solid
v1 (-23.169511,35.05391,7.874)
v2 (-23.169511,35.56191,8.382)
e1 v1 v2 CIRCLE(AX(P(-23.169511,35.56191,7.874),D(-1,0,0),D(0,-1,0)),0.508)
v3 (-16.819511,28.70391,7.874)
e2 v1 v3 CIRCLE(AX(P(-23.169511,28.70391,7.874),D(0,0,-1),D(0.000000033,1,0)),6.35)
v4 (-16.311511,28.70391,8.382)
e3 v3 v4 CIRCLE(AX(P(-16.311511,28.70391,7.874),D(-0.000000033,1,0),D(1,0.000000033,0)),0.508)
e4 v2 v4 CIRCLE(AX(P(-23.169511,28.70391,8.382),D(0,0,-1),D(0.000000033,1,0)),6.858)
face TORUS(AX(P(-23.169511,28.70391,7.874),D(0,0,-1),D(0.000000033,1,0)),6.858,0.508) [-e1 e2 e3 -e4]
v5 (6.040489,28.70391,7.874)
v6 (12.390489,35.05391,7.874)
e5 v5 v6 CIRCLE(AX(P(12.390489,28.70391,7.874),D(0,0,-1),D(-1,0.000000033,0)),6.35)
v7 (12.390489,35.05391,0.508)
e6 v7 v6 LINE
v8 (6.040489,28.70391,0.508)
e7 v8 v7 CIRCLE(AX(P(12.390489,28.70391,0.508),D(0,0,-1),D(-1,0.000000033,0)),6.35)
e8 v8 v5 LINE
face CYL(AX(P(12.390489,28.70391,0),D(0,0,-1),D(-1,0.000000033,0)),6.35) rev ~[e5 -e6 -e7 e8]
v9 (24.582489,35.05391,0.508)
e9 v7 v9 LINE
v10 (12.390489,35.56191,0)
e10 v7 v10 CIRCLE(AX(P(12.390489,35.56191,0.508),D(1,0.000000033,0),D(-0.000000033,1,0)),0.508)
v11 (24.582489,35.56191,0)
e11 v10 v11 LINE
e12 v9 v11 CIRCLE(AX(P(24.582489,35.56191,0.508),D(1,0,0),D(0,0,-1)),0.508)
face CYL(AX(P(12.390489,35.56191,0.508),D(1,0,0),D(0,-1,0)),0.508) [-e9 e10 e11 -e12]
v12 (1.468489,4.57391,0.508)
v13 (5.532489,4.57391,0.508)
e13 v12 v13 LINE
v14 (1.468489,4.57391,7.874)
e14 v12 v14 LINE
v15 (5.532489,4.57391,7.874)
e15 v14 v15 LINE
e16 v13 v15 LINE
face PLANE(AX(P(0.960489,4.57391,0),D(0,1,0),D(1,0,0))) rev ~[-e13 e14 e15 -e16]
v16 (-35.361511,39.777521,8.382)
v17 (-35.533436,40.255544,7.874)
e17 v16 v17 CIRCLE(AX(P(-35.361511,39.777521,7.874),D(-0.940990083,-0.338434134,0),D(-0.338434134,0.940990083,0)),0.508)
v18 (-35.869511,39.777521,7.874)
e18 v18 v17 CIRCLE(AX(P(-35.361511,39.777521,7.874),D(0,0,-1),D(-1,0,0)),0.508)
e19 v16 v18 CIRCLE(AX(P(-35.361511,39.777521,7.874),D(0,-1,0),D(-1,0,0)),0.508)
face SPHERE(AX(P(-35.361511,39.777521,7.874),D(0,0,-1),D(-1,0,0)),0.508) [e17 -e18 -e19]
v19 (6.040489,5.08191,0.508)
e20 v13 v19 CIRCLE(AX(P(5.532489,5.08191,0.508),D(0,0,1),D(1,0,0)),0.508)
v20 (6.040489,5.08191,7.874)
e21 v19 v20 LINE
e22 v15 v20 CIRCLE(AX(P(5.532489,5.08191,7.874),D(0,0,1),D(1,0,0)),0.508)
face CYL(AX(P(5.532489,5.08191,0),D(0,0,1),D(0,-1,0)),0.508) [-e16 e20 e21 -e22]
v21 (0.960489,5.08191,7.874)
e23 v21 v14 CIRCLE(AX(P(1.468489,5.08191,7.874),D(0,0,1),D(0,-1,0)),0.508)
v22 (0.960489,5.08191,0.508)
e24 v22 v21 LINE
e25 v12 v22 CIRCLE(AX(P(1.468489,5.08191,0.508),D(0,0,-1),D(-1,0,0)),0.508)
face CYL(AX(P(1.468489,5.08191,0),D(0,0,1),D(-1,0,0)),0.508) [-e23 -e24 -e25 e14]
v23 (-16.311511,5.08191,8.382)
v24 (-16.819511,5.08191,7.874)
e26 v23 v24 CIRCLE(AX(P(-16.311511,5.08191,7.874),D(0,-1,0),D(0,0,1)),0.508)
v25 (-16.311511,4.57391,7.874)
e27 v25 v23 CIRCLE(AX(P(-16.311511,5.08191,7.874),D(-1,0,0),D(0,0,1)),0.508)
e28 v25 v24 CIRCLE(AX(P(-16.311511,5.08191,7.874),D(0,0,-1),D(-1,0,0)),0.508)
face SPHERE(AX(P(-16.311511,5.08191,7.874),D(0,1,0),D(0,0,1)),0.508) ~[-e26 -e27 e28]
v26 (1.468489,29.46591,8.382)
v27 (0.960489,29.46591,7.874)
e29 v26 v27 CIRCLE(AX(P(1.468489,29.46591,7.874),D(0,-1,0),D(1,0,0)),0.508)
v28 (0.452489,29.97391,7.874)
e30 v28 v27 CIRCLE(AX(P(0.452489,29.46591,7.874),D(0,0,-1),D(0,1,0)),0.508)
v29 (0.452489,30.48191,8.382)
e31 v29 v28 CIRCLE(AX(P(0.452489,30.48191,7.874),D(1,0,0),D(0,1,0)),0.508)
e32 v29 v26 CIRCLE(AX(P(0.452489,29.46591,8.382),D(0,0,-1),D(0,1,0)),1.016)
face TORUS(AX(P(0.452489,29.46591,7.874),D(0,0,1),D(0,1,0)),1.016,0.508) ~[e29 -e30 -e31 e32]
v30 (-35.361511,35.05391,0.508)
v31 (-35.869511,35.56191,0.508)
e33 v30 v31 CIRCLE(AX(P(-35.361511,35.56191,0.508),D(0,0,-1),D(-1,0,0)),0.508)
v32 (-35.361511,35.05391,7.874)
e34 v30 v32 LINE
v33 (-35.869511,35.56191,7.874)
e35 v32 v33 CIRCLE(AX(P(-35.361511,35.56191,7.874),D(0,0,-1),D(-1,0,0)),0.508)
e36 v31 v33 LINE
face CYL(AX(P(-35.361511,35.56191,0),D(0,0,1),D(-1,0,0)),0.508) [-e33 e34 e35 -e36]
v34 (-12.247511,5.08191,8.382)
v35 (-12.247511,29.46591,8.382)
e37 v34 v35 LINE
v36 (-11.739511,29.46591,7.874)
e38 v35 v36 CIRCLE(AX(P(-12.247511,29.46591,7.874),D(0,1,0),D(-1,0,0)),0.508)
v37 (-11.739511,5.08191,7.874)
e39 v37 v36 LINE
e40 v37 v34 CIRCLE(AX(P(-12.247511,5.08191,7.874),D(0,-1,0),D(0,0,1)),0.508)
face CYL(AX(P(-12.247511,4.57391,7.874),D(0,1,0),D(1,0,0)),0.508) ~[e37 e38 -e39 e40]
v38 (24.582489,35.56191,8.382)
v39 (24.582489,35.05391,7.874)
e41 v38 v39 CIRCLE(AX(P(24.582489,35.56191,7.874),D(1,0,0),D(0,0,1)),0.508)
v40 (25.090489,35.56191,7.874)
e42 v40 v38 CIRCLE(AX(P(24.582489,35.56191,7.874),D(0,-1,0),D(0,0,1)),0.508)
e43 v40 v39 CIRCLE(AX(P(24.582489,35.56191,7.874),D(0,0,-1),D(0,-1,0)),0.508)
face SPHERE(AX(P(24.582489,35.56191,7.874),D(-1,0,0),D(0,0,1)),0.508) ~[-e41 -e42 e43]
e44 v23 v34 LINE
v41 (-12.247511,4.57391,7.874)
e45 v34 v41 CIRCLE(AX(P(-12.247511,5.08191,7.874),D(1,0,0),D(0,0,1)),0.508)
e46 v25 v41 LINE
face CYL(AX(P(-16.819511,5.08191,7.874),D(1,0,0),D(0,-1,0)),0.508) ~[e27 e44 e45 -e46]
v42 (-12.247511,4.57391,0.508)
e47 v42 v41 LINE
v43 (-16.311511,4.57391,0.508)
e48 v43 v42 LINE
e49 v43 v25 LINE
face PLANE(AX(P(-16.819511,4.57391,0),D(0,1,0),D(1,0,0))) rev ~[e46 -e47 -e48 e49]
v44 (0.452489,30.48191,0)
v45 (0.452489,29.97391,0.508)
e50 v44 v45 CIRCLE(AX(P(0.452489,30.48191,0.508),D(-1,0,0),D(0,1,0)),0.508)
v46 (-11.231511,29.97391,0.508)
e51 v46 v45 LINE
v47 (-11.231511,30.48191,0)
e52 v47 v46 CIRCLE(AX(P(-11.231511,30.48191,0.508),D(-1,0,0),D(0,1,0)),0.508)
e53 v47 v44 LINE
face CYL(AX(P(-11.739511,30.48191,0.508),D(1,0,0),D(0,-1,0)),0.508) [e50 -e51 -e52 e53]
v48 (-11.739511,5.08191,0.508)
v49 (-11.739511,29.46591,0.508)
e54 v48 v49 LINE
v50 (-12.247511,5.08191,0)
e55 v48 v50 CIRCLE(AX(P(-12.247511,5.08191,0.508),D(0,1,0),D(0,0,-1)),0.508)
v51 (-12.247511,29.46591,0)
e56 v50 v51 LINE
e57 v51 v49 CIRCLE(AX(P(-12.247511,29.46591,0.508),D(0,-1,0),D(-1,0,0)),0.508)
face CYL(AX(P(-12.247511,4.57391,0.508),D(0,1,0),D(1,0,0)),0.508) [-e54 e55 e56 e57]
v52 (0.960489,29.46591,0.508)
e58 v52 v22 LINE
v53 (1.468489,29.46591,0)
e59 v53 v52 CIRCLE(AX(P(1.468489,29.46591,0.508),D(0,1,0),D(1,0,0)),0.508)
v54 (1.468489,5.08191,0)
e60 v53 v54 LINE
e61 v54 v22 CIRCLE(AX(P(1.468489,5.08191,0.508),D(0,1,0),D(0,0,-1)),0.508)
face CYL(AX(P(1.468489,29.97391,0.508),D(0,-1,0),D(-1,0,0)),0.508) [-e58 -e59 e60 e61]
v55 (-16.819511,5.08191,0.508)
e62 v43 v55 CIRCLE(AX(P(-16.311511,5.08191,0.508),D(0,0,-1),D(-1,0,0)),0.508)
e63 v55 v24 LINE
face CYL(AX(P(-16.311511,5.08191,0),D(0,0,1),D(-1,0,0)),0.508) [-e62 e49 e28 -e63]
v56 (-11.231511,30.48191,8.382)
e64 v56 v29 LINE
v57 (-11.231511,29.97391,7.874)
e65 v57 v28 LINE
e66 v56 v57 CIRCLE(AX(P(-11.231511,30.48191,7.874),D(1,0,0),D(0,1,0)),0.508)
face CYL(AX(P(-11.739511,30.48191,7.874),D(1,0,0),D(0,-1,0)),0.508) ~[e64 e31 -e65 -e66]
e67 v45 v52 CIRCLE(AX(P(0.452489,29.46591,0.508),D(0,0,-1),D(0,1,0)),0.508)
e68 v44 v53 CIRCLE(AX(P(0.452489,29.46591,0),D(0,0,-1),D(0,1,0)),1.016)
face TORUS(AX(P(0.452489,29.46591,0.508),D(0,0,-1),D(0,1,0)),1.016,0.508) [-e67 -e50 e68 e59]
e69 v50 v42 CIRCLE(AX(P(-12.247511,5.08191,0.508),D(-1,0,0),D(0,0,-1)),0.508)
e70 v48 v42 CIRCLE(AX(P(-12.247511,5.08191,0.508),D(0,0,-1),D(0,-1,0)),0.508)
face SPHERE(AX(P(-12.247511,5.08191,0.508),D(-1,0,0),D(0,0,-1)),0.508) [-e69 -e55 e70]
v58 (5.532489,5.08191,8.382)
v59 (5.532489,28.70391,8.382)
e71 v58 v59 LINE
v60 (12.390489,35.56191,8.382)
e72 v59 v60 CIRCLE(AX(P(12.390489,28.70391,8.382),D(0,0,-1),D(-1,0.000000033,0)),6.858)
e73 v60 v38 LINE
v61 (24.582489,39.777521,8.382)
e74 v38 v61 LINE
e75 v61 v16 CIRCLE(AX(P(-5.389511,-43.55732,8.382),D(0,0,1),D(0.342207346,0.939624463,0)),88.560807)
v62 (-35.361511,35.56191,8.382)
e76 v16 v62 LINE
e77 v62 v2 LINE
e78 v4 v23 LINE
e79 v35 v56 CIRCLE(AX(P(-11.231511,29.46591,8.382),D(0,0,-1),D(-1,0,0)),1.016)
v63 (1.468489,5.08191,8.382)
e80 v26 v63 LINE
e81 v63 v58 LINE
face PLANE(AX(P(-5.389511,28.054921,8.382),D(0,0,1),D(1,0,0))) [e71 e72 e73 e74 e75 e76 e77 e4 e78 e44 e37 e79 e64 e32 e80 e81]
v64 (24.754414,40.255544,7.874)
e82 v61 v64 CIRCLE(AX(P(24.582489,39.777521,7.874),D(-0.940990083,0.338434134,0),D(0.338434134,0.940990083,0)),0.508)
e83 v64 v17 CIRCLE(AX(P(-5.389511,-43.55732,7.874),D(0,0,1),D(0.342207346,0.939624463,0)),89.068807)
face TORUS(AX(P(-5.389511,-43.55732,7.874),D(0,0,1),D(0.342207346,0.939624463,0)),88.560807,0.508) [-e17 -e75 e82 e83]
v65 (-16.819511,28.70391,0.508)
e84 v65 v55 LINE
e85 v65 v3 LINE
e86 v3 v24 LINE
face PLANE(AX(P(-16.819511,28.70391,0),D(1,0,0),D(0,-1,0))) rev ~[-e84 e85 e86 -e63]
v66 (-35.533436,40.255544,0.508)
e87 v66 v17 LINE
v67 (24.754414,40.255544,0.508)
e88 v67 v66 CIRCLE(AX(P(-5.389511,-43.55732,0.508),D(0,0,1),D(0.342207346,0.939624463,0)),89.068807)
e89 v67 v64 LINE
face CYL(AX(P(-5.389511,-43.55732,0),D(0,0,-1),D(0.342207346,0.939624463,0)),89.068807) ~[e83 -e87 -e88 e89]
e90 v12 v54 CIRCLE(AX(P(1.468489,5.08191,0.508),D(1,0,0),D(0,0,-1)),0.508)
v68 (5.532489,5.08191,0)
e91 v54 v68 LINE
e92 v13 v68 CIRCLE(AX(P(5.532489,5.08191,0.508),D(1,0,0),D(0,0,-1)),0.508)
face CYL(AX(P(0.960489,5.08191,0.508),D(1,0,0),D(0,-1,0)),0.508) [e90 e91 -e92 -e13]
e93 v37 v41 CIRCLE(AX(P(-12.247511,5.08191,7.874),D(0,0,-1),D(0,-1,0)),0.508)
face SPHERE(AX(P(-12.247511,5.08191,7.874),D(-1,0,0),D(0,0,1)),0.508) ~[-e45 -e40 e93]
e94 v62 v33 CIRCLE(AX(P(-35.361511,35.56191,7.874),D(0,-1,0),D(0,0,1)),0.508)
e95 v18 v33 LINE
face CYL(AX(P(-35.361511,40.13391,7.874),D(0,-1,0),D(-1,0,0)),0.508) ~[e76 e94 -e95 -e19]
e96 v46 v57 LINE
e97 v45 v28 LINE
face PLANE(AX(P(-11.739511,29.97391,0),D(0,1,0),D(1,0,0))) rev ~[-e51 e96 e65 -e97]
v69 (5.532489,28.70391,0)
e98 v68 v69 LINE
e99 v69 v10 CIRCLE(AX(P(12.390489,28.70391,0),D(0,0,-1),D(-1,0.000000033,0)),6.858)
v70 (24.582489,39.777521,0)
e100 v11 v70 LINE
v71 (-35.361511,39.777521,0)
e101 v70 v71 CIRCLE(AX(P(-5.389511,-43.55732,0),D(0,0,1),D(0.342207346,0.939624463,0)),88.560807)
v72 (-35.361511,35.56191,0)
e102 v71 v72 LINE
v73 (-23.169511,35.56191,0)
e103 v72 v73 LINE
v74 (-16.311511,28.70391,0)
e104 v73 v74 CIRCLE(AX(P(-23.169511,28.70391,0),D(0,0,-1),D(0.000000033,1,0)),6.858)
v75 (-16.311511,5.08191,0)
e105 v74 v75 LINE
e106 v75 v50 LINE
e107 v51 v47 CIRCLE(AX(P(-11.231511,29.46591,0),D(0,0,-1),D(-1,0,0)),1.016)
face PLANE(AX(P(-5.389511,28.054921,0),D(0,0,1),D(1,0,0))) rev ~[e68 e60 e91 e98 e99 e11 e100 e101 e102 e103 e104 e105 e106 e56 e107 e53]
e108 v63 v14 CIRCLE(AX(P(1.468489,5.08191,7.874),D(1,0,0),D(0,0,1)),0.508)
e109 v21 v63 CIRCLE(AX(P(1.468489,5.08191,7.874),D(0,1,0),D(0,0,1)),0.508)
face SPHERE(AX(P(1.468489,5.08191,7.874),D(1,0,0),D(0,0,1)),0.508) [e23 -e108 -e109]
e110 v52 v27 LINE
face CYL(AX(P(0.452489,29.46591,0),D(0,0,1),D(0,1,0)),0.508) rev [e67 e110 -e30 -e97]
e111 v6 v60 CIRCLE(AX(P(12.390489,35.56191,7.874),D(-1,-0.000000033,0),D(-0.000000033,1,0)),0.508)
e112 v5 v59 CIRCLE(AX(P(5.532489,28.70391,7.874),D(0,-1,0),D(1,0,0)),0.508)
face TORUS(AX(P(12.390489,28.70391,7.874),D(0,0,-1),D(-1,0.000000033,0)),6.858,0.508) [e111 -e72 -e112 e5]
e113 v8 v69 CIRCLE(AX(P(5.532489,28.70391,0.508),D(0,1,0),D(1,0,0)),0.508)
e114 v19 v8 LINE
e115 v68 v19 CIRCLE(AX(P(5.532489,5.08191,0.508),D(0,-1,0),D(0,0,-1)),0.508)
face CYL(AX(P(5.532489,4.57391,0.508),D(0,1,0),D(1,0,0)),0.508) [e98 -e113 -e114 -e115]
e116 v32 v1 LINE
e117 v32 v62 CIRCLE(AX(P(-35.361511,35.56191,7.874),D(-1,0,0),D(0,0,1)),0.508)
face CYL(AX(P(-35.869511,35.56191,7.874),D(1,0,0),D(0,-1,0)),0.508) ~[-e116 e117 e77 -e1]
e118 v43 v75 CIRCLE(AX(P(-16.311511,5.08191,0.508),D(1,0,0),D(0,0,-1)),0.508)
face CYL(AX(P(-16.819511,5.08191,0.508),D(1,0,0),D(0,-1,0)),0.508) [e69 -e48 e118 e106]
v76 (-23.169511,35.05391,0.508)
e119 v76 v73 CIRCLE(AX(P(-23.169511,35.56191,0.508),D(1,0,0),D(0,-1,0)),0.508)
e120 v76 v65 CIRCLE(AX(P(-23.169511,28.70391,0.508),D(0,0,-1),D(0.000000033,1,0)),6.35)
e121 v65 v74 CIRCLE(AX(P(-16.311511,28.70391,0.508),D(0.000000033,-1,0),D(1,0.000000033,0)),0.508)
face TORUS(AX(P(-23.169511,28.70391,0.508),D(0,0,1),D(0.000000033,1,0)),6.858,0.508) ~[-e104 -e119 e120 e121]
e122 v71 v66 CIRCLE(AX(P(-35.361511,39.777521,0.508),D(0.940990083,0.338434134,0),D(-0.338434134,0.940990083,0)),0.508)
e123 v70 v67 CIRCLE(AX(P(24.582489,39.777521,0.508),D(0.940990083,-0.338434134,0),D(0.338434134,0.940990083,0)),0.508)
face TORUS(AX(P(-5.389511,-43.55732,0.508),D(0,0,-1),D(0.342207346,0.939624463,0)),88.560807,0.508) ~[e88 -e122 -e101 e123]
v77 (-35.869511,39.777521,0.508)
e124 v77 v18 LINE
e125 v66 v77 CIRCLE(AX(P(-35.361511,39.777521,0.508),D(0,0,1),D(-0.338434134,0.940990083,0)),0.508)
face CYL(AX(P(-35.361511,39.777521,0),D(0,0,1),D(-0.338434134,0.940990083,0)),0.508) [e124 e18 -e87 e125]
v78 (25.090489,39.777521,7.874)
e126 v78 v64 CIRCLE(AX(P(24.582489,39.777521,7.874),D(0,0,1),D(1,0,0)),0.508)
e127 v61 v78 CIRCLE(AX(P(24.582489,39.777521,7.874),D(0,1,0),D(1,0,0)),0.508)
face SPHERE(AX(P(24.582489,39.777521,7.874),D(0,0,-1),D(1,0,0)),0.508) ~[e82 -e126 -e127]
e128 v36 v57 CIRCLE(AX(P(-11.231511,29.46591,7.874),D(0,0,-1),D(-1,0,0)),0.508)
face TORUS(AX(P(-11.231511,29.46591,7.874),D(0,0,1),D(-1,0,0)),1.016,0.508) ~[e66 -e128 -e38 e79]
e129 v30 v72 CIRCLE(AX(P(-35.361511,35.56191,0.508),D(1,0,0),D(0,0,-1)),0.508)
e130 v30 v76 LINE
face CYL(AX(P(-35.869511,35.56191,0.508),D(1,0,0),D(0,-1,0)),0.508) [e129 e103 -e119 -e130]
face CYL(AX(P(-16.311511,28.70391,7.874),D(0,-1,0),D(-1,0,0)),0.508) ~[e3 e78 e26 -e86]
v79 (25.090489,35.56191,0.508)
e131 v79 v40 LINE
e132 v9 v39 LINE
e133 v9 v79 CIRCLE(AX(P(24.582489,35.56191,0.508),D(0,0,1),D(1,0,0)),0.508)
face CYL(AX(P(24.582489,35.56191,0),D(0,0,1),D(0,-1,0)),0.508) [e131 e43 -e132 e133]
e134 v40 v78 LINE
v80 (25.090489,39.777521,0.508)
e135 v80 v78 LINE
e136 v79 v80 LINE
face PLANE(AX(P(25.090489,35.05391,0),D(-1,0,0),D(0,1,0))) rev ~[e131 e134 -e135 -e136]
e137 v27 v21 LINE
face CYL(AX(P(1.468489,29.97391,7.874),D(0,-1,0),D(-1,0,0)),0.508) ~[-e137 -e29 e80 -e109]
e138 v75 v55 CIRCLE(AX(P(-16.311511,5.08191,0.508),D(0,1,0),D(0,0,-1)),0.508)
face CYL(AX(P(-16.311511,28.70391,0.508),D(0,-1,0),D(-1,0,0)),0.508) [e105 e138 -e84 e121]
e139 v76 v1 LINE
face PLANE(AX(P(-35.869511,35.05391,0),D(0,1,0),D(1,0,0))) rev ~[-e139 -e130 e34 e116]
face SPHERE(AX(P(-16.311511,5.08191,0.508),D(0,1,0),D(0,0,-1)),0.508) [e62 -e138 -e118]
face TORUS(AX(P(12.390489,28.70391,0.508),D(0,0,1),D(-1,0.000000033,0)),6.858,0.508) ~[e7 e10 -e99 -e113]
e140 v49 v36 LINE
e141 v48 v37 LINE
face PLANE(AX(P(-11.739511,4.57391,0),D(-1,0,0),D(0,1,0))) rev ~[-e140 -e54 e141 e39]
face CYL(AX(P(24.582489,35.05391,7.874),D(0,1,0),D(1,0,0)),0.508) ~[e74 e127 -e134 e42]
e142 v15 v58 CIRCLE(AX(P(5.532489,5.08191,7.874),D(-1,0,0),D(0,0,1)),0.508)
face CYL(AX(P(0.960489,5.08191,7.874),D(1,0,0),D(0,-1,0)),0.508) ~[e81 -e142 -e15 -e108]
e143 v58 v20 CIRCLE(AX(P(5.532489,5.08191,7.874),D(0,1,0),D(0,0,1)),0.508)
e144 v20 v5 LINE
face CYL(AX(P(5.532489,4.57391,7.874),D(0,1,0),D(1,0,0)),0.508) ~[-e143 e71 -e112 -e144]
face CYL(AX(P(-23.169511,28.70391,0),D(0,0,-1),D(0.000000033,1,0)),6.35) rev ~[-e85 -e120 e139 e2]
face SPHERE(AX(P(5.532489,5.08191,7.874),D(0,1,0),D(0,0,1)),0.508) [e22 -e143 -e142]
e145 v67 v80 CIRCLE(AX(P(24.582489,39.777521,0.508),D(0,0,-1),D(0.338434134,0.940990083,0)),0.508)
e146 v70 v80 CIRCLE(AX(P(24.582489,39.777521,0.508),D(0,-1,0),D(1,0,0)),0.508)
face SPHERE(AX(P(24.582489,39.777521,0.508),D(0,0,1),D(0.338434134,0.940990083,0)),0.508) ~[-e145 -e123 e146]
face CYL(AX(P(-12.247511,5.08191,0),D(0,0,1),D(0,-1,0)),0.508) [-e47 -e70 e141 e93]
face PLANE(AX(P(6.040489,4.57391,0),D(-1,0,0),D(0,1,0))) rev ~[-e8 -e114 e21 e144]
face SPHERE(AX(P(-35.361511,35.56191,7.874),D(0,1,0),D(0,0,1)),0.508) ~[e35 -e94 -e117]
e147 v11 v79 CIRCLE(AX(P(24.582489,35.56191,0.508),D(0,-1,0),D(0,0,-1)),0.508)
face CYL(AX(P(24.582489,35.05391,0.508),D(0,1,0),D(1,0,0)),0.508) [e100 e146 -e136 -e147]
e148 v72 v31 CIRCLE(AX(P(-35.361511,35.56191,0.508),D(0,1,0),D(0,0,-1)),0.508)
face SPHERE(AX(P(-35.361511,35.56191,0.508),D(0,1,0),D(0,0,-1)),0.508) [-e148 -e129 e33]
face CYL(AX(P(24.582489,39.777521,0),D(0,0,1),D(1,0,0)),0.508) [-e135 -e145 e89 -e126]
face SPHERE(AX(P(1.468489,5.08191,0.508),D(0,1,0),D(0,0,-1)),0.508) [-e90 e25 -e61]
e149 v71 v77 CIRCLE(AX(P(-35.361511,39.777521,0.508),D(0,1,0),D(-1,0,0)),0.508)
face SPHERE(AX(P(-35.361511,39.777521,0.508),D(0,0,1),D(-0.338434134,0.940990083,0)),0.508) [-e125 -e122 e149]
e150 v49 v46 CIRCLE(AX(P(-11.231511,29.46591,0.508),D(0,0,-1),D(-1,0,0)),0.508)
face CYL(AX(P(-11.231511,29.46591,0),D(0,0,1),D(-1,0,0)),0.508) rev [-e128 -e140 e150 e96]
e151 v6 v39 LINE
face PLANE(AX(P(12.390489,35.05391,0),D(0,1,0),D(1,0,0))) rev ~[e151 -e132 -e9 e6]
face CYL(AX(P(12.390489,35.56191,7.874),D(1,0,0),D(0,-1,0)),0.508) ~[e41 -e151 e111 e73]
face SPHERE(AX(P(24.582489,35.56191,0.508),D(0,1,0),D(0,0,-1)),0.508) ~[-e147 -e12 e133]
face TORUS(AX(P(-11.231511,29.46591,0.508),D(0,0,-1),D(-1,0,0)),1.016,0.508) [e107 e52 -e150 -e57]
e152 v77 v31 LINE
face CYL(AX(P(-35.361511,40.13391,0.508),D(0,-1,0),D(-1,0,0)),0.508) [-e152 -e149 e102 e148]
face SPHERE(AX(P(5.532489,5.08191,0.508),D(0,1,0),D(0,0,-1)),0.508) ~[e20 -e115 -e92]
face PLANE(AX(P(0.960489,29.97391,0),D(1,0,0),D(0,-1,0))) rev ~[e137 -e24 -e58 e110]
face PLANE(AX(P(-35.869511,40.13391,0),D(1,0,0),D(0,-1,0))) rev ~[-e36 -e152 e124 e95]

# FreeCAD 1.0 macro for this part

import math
import FreeCAD as App
import Part
import Sketcher

V = App.Vector
Q = App.Units.Quantity

doc = App.newDocument("Part")
params = doc.addObject("Spreadsheet::Sheet", "Params")
for row, (alias, value) in enumerate([
    ("sketch1_height", "1 in"),
    ("sketch1_radius", "0.25 in"),
    ("sketch1_width", "0.2 in"),
    ("sketch1_width2", "0.5 in"),
    ("sketch1_height2", "0.95 in"),
    ("pad1_length", "0.33 in"),
    ("fillet_radius", "0.02 in"),
], start=1):
    params.set(f"A{row}", alias)
    params.set(f"B{row}", "=" + value)
    params.setAlias(f"B{row}", alias)

body = doc.addObject("PartDesign::Body", "Body")

# Sketch on XY plane
sketch1 = body.newObject("Sketcher::SketchObject", "Sketch")
sketch1.AttachmentSupport = (doc.getObject("XY_Plane"), [""])
sketch1.MapMode = "FlatFace"
sketch1.addGeometry([
    Part.LineSegment(V(-17, 29, 0), V(-17, 5, 0)),  # 0
    Part.LineSegment(V(-17, 5, 0), V(-12, 5, 0)),  # 1
    Part.LineSegment(V(-12, 5, 0), V(-12, 30, 0)),  # 2
    Part.LineSegment(V(-12, 30, 0), V(1, 30, 0)),  # 3
    Part.LineSegment(V(1, 30, 0), V(1, 5, 0)),  # 4
    Part.LineSegment(V(1, 5, 0), V(6, 5, 0)),  # 5
    Part.LineSegment(V(6, 5, 0), V(6, 29, 0)),  # 6
    Part.ArcOfCircle(Part.Circle(V(12, 29, 0), V(0, 0, 1), 6), math.radians(90), math.radians(180)),  # 7
    Part.LineSegment(V(12, 35, 0), V(25, 35, 0)),  # 8
    Part.LineSegment(V(25, 35, 0), V(25, 40, 0)),  # 9
    Part.ArcOfCircle(Part.Circle(V(-5, -44, 0), V(0, 0, 1), 89), math.radians(70), math.radians(110)),  # 10
    Part.LineSegment(V(-36, 40, 0), V(-36, 35, 0)),  # 11
    Part.LineSegment(V(-36, 35, 0), V(-23, 35, 0)),  # 12
    Part.ArcOfCircle(Part.Circle(V(-23, 29, 0), V(0, 0, 1), 6), math.radians(0), math.radians(90)),  # 13
], False)
sketch1.addConstraint([
    Sketcher.Constraint("Coincident", 0, 2, 1, 1),
    Sketcher.Constraint("Coincident", 1, 2, 2, 1),
    Sketcher.Constraint("Coincident", 2, 2, 3, 1),
    Sketcher.Constraint("Coincident", 3, 2, 4, 1),
    Sketcher.Constraint("Coincident", 4, 2, 5, 1),
    Sketcher.Constraint("Coincident", 5, 2, 6, 1),
    Sketcher.Constraint("Tangent", 6, 2, 7, 2),
    Sketcher.Constraint("Tangent", 7, 1, 8, 1),
    Sketcher.Constraint("Coincident", 8, 2, 9, 1),
    Sketcher.Constraint("Coincident", 9, 2, 10, 1),
    Sketcher.Constraint("Coincident", 10, 2, 11, 1),
    Sketcher.Constraint("Coincident", 11, 2, 12, 1),
    Sketcher.Constraint("Tangent", 12, 2, 13, 2),
    Sketcher.Constraint("Tangent", 13, 1, 0, 1),
    Sketcher.Constraint("Vertical", 0),
    Sketcher.Constraint("Horizontal", 1),
    Sketcher.Constraint("Vertical", 2),
    Sketcher.Constraint("Horizontal", 3),
    Sketcher.Constraint("Vertical", 4),
    Sketcher.Constraint("Horizontal", 5),
    Sketcher.Constraint("Vertical", 6),
    Sketcher.Constraint("Horizontal", 8),
    Sketcher.Constraint("Vertical", 9),
    Sketcher.Constraint("Vertical", 11),
    Sketcher.Constraint("Horizontal", 12),
    Sketcher.Constraint("Equal", 7, 13),
    Sketcher.Constraint("Horizontal", 7, 3, 13, 3),
    Sketcher.Constraint("Horizontal", 1, 2, 4, 2),
    Sketcher.Constraint("Horizontal", 9, 2, 10, 2),
    Sketcher.Constraint("Equal", 1, 5),
    Sketcher.Constraint("Equal", 3, 8),
    Sketcher.Constraint("Equal", 8, 12),
    Sketcher.Constraint("Equal", 5, 9),
    Sketcher.Constraint("DistanceY", 2, 1, 2, 2, Q("1 in")),
    Sketcher.Constraint("Radius", 7, Q("0.25 in")),
    Sketcher.Constraint("DistanceX", 1, 1, 1, 2, Q("0.2 in")),
    Sketcher.Constraint("DistanceX", 3, 1, 3, 2, Q("0.5 in")),
    Sketcher.Constraint("DistanceY", 0, 2, 0, 1, Q("0.95 in")),
    Sketcher.Constraint("Radius", 10, Q("89.068807 mm")),
    Sketcher.Constraint("DistanceX", -1, 1, 7, 3, Q("12.390489 mm")),
    Sketcher.Constraint("DistanceY", -1, 1, 7, 3, Q("28.70391 mm")),
])
sketch1.setExpression("Constraints[33]", "Params.sketch1_height")
sketch1.setExpression("Constraints[34]", "Params.sketch1_radius")
sketch1.setExpression("Constraints[35]", "Params.sketch1_width")
sketch1.setExpression("Constraints[36]", "Params.sketch1_width2")
sketch1.setExpression("Constraints[37]", "Params.sketch1_height2")
pad1 = body.newObject("PartDesign::Pad", "Pad")
pad1.Profile = sketch1
pad1.setExpression("Length", "Params.pad1_length")
doc.recompute()

fillet = body.newObject("PartDesign::Fillet", "Fillet")
fillet.Base = (pad1, ["Edge1"])
fillet.UseAllEdges = True
fillet.setExpression("Radius", "Params.fillet_radius")

doc.recompute()
